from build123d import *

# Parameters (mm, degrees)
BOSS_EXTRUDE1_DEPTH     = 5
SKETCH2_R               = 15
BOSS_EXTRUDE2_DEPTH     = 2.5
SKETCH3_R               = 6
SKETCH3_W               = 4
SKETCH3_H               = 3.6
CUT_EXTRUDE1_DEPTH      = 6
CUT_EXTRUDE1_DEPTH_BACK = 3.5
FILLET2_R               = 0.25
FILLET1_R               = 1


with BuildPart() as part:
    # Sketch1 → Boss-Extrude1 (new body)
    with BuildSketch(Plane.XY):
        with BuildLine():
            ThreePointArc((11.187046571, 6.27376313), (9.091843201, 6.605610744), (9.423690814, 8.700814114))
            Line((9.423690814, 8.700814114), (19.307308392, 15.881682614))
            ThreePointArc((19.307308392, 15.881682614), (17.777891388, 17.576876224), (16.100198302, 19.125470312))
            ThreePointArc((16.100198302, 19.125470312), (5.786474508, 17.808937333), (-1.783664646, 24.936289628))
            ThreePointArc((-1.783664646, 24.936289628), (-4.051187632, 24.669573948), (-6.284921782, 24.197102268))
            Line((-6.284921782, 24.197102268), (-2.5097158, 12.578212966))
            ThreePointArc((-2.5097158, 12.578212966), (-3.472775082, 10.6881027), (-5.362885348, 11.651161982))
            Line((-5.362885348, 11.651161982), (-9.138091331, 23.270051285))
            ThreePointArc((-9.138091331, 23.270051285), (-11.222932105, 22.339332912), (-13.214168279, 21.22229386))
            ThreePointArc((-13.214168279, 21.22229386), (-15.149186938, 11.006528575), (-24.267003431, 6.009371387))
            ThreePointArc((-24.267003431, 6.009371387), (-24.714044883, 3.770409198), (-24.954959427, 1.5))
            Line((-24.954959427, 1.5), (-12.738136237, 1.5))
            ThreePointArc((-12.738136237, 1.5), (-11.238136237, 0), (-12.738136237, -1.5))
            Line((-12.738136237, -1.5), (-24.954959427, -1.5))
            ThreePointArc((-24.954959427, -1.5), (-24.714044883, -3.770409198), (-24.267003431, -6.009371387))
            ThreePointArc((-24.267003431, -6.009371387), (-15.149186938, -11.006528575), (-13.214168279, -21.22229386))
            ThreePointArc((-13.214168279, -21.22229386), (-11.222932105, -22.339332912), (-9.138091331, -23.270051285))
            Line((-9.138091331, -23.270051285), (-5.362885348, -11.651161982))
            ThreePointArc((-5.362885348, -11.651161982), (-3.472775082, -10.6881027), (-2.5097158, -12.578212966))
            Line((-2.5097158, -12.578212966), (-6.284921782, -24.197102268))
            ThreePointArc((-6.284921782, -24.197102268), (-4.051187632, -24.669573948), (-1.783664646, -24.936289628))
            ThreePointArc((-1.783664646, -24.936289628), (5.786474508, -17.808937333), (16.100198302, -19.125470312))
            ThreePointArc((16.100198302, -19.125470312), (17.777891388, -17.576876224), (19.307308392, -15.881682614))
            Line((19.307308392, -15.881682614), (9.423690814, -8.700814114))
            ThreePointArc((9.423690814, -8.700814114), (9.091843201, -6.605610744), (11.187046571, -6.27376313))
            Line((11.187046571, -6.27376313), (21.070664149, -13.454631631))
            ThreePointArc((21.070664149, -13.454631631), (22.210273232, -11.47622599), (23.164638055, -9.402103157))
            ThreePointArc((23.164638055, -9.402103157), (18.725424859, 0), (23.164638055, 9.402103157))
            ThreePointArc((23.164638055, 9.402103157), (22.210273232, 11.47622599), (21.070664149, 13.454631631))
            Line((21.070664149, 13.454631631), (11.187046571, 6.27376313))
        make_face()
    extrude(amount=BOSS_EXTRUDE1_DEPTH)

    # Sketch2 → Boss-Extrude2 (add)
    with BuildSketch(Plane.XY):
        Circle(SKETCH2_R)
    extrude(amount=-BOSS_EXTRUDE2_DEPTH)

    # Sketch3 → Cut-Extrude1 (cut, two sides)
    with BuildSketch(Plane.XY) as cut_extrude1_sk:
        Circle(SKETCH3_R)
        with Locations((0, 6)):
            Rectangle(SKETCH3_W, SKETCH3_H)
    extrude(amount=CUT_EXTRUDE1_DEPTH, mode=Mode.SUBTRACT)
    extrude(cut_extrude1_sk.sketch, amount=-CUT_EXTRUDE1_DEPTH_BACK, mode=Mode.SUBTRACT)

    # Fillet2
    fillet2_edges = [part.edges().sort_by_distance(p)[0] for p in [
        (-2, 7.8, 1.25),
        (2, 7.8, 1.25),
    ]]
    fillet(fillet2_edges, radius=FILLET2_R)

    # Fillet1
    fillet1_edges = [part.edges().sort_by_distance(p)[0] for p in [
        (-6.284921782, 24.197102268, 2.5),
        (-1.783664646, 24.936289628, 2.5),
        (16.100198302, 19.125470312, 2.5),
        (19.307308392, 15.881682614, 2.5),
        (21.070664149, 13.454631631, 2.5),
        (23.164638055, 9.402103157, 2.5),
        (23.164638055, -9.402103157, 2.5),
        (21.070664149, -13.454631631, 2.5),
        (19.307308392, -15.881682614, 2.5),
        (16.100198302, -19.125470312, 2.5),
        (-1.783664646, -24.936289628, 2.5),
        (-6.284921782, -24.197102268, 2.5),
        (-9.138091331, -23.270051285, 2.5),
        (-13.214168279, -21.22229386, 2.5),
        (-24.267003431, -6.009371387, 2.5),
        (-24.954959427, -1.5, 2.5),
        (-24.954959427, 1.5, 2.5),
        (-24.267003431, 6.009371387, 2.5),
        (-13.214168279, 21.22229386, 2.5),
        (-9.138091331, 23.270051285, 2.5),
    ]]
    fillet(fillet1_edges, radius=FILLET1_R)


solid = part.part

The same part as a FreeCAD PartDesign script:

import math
import FreeCAD as App
import Part
import Sketcher

V = App.Vector
Q = App.Units.Quantity


def edges_at(feature, points):
    """Names of the edges that pass closest to the given points."""
    edges = feature.Shape.Edges
    near = lambda p: min(range(len(edges)), key=lambda i: edges[i].distToShape(Part.Vertex(*p))[0])
    return sorted({f"Edge{near(p) + 1}" for p in points})

doc = App.newDocument("Part")
params = doc.addObject("Spreadsheet::Sheet", "Params")
for row, (alias, value) in enumerate([
    ("sketch1_radius", "25 mm"),
    ("sketch1_radius2", "1.5 mm"),
    ("pad1_length", "5 mm"),
    ("sketch2_diameter", "30 mm"),
    ("pad2_length", "2.5 mm"),
    ("sketch3_radius", "6 mm"),
    ("sketch3_width", "4 mm"),
    ("fillet_radius", "0.25 mm"),
    ("fillet2_radius", "1 mm"),
], start=1):
    params.set(f"A{row}", alias)
    params.set(f"B{row}", "=" + value)
    params.setAlias(f"B{row}", alias)

body = doc.addObject("PartDesign::Body", "Body")

# Sketch on XY plane
sketch1 = body.newObject("Sketcher::SketchObject", "Sketch")
sketch1.AttachmentSupport = (doc.getObject("XY_Plane"), [""])
sketch1.MapMode = "FlatFace"
sketch1.addGeometry(Part.ArcOfCircle(Part.Circle(V(10.305369, 7.487289, 0), V(0, 0, 1), 1.5), math.radians(126), math.radians(306)), False)
sketch1.addGeometry(Part.LineSegment(V(9.423691, 8.700814, 0), V(19.307308, 15.881683, 0)), False)
sketch1.addGeometry(Part.ArcOfCircle(Part.Circle(V(0, 0, 0), V(0, 0, 1), 25), math.radians(39.439813), math.radians(49.908666)), False)
sketch1.addGeometry(Part.ArcOfCircle(Part.Circle(V(9.54915, 29.389263, 0), V(0, 0, 1), 12.176275), math.radians(-158.548779), math.radians(-57.451221)), False)
sketch1.addGeometry(Part.ArcOfCircle(Part.Circle(V(0, 0, 0), V(0, 0, 1), 25), math.radians(94.091334), math.radians(104.560187)), False)
sketch1.addGeometry(Part.LineSegment(V(-6.284922, 24.197102, 0), V(-2.509716, 12.578213, 0)), False)
sketch1.addGeometry(Part.ArcOfCircle(Part.Circle(V(-3.936301, 12.114687, 0), V(0, 0, 1), 1.5), math.radians(-162), math.radians(18)), False)
sketch1.addGeometry(Part.LineSegment(V(-5.362885, 11.651162, 0), V(-9.138091, 23.270051, 0)), False)
sketch1.addGeometry(Part.ArcOfCircle(Part.Circle(V(0, 0, 0), V(0, 0, 1), 25), math.radians(111.439813), math.radians(121.908666)), False)
sketch1.addGeometry(Part.ArcOfCircle(Part.Circle(V(-25, 18.163563, 0), V(0, 0, 1), 12.176275), math.radians(-86.548779), math.radians(14.548779)), False)
sketch1.addGeometry(Part.ArcOfCircle(Part.Circle(V(0, 0, 0), V(0, 0, 1), 25), math.radians(166.091334), math.radians(176.560187)), False)
sketch1.addGeometry(Part.LineSegment(V(-24.954959, 1.5, 0), V(-12.738136, 1.5, 0)), False)
sketch1.addGeometry(Part.ArcOfCircle(Part.Circle(V(-12.738136, 0, 0), V(0, 0, 1), 1.5), math.radians(-90), math.radians(90)), False)
sketch1.addGeometry(Part.LineSegment(V(-12.738136, -1.5, 0), V(-24.954959, -1.5, 0)), False)
sketch1.addGeometry(Part.ArcOfCircle(Part.Circle(V(0, 0, 0), V(0, 0, 1), 25), math.radians(-176.560187), math.radians(-166.091334)), False)
sketch1.addGeometry(Part.ArcOfCircle(Part.Circle(V(-25, -18.163563, 0), V(0, 0, 1), 12.176275), math.radians(-14.548779), math.radians(86.548779)), False)
sketch1.addGeometry(Part.ArcOfCircle(Part.Circle(V(0, 0, 0), V(0, 0, 1), 25), math.radians(-121.908666), math.radians(-111.439813)), False)
sketch1.addGeometry(Part.LineSegment(V(-9.138091, -23.270051, 0), V(-5.362885, -11.651162, 0)), False)
sketch1.addGeometry(Part.ArcOfCircle(Part.Circle(V(-3.936301, -12.114687, 0), V(0, 0, 1), 1.5), math.radians(-18), math.radians(162)), False)
sketch1.addGeometry(Part.LineSegment(V(-2.509716, -12.578213, 0), V(-6.284922, -24.197102, 0)), False)
sketch1.addGeometry(Part.ArcOfCircle(Part.Circle(V(0, 0, 0), V(0, 0, 1), 25), math.radians(-104.560187), math.radians(-94.091334)), False)
sketch1.addGeometry(Part.ArcOfCircle(Part.Circle(V(9.54915, -29.389263, 0), V(0, 0, 1), 12.176275), math.radians(57.451221), math.radians(158.548779)), False)
sketch1.addGeometry(Part.ArcOfCircle(Part.Circle(V(0, 0, 0), V(0, 0, 1), 25), math.radians(-49.908666), math.radians(-39.439813)), False)
sketch1.addGeometry(Part.LineSegment(V(19.307308, -15.881683, 0), V(9.423691, -8.700814, 0)), False)
sketch1.addGeometry(Part.ArcOfCircle(Part.Circle(V(10.305369, -7.487289, 0), V(0, 0, 1), 1.5), math.radians(54), math.radians(234)), False)
sketch1.addGeometry(Part.LineSegment(V(11.187047, -6.273763, 0), V(21.070664, -13.454632, 0)), False)
sketch1.addGeometry(Part.ArcOfCircle(Part.Circle(V(0, 0, 0), V(0, 0, 1), 25), math.radians(-32.560187), math.radians(-22.091334)), False)
sketch1.addGeometry(Part.ArcOfCircle(Part.Circle(V(30.901699, 0, 0), V(0, 0, 1), 12.176275), math.radians(129.451221), math.radians(230.548779)), False)
sketch1.addGeometry(Part.ArcOfCircle(Part.Circle(V(0, 0, 0), V(0, 0, 1), 25), math.radians(22.091334), math.radians(32.560187)), False)
sketch1.addGeometry(Part.LineSegment(V(21.070664, 13.454632, 0), V(11.187047, 6.273763, 0)), False)
sketch1.addConstraint(Sketcher.Constraint("Tangent", 0, 1, 1, 1))
sketch1.addConstraint(Sketcher.Constraint("Coincident", 1, 2, 2, 1))
sketch1.addConstraint(Sketcher.Constraint("Coincident", 2, 2, 3, 2))
sketch1.addConstraint(Sketcher.Constraint("Coincident", 3, 1, 4, 1))
sketch1.addConstraint(Sketcher.Constraint("Coincident", 4, 2, 5, 1))
sketch1.addConstraint(Sketcher.Constraint("Tangent", 5, 2, 6, 2))
sketch1.addConstraint(Sketcher.Constraint("Tangent", 6, 1, 7, 1))
sketch1.addConstraint(Sketcher.Constraint("Coincident", 7, 2, 8, 1))
sketch1.addConstraint(Sketcher.Constraint("Coincident", 8, 2, 9, 2))
sketch1.addConstraint(Sketcher.Constraint("Coincident", 9, 1, 10, 1))
sketch1.addConstraint(Sketcher.Constraint("Coincident", 10, 2, 11, 1))
sketch1.addConstraint(Sketcher.Constraint("Tangent", 11, 2, 12, 2))
sketch1.addConstraint(Sketcher.Constraint("Tangent", 12, 1, 13, 1))
sketch1.addConstraint(Sketcher.Constraint("Coincident", 13, 2, 14, 1))
sketch1.addConstraint(Sketcher.Constraint("Coincident", 14, 2, 15, 2))
sketch1.addConstraint(Sketcher.Constraint("Coincident", 15, 1, 16, 1))
sketch1.addConstraint(Sketcher.Constraint("Coincident", 16, 2, 17, 1))
sketch1.addConstraint(Sketcher.Constraint("Tangent", 17, 2, 18, 2))
sketch1.addConstraint(Sketcher.Constraint("Tangent", 18, 1, 19, 1))
sketch1.addConstraint(Sketcher.Constraint("Coincident", 19, 2, 20, 1))
sketch1.addConstraint(Sketcher.Constraint("Coincident", 20, 2, 21, 2))
sketch1.addConstraint(Sketcher.Constraint("Coincident", 21, 1, 22, 1))
sketch1.addConstraint(Sketcher.Constraint("Coincident", 22, 2, 23, 1))
sketch1.addConstraint(Sketcher.Constraint("Tangent", 23, 2, 24, 2))
sketch1.addConstraint(Sketcher.Constraint("Tangent", 24, 1, 25, 1))
sketch1.addConstraint(Sketcher.Constraint("Coincident", 25, 2, 26, 1))
sketch1.addConstraint(Sketcher.Constraint("Coincident", 26, 2, 27, 2))
sketch1.addConstraint(Sketcher.Constraint("Coincident", 27, 1, 28, 1))
sketch1.addConstraint(Sketcher.Constraint("Coincident", 28, 2, 29, 1))
sketch1.addConstraint(Sketcher.Constraint("Tangent", 29, 2, 0, 2))
sketch1.addConstraint(Sketcher.Constraint("Horizontal", 11))
sketch1.addConstraint(Sketcher.Constraint("Horizontal", 13))
sketch1.addConstraint(Sketcher.Constraint("Coincident", 2, 3, -1, 1))
sketch1.addConstraint(Sketcher.Constraint("Coincident", 4, 3, -1, 1))
sketch1.addConstraint(Sketcher.Constraint("Coincident", 8, 3, -1, 1))
sketch1.addConstraint(Sketcher.Constraint("Coincident", 10, 3, -1, 1))
sketch1.addConstraint(Sketcher.Constraint("Coincident", 14, 3, -1, 1))
sketch1.addConstraint(Sketcher.Constraint("Coincident", 16, 3, -1, 1))
sketch1.addConstraint(Sketcher.Constraint("Coincident", 20, 3, -1, 1))
sketch1.addConstraint(Sketcher.Constraint("Coincident", 22, 3, -1, 1))
sketch1.addConstraint(Sketcher.Constraint("Coincident", 26, 3, -1, 1))
sketch1.addConstraint(Sketcher.Constraint("Coincident", 28, 3, -1, 1))
sketch1.addConstraint(Sketcher.Constraint("Equal", 2, 4))
sketch1.addConstraint(Sketcher.Constraint("Equal", 0, 6))
sketch1.addConstraint(Sketcher.Constraint("Equal", 4, 8))
sketch1.addConstraint(Sketcher.Constraint("Equal", 3, 9))
sketch1.addConstraint(Sketcher.Constraint("Equal", 8, 10))
sketch1.addConstraint(Sketcher.Constraint("Equal", 6, 12))
sketch1.addConstraint(Sketcher.Constraint("Equal", 10, 14))
sketch1.addConstraint(Sketcher.Constraint("Equal", 9, 15))
sketch1.addConstraint(Sketcher.Constraint("Equal", 14, 16))
sketch1.addConstraint(Sketcher.Constraint("Equal", 12, 18))
sketch1.addConstraint(Sketcher.Constraint("Equal", 16, 20))
sketch1.addConstraint(Sketcher.Constraint("Equal", 15, 21))
sketch1.addConstraint(Sketcher.Constraint("Equal", 20, 22))
sketch1.addConstraint(Sketcher.Constraint("Equal", 18, 24))
sketch1.addConstraint(Sketcher.Constraint("Equal", 22, 26))
sketch1.addConstraint(Sketcher.Constraint("Equal", 21, 27))
sketch1.addConstraint(Sketcher.Constraint("Equal", 26, 28))
sketch1.addConstraint(Sketcher.Constraint("Symmetric", 9, 3, 15, 3, -1))
sketch1.addConstraint(Sketcher.Constraint("Symmetric", 6, 3, 18, 3, -1))
sketch1.addConstraint(Sketcher.Constraint("Symmetric", 3, 3, 21, 3, -1))
sketch1.addConstraint(Sketcher.Constraint("Symmetric", 0, 3, 24, 3, -1))
sketch1.addConstraint(Sketcher.Constraint("PointOnObject", 12, 3, -1))
sketch1.addConstraint(Sketcher.Constraint("PointOnObject", 27, 3, -1))
sketch1.addConstraint(Sketcher.Constraint("Parallel", 5, 7))
sketch1.addConstraint(Sketcher.Constraint("Parallel", 17, 19))
sketch1.addConstraint(Sketcher.Constraint("Parallel", 23, 25))
sketch1.addConstraint(Sketcher.Constraint("Parallel", 1, 29))
sketch1.addConstraint(Sketcher.Constraint("Vertical", 7, 2, 16, 2))
sketch1.addConstraint(Sketcher.Constraint("Vertical", 1, 2, 22, 2))
sketch1.addConstraint(Sketcher.Constraint("Equal", 1, 5))
sketch1.addConstraint(Sketcher.Constraint("Equal", 5, 7))
sketch1.addConstraint(Sketcher.Constraint("Equal", 23, 25))
sketch1.addConstraint(Sketcher.Constraint("Radius", 2, Q("25 mm")))
sketch1.addConstraint(Sketcher.Constraint("Radius", 0, Q("1.5 mm")))
sketch1.addConstraint(Sketcher.Constraint("Angle", 1, Q("36 deg")))
sketch1.addConstraint(Sketcher.Constraint("Angle", 5, Q("-72 deg")))
sketch1.addConstraint(Sketcher.Constraint("DistanceX", 9, 3, -1, 1, Q("25 mm")))
sketch1.addConstraint(Sketcher.Constraint("Radius", 3, Q("12.176275 mm")))
sketch1.addConstraint(Sketcher.Constraint("DistanceY", 0, 3, 3, 1, Q("17.449001 mm")))
sketch1.addConstraint(Sketcher.Constraint("DistanceX", 6, 3, -1, 1, Q("3.936301 mm")))
sketch1.addConstraint(Sketcher.Constraint("DistanceX", -1, 1, 27, 3, Q("30.901699 mm")))
sketch1.addConstraint(Sketcher.Constraint("DistanceX", -1, 1, 2, 2, Q("16.100198 mm")))
sketch1.addConstraint(Sketcher.Constraint("DistanceY", 9, 3, 3, 3, Q("11.225699 mm")))
sketch1.addConstraint(Sketcher.Constraint("DistanceX", 11, 1, 11, 2, Q("12.216823 mm")))
sketch1.setExpression("Constraints[74]", "Params.sketch1_radius")
sketch1.setExpression("Constraints[75]", "Params.sketch1_radius2")
pad1 = body.newObject("PartDesign::Pad", "Pad")
pad1.Profile = sketch1
pad1.setExpression("Length", "Params.pad1_length")

# Sketch on XY plane
sketch2 = body.newObject("Sketcher::SketchObject", "Sketch001")
sketch2.AttachmentSupport = (doc.getObject("XY_Plane"), [""])
sketch2.MapMode = "FlatFace"
sketch2.addGeometry(Part.Circle(V(0, 0, 0), V(0, 0, 1), 15), False)
sketch2.addConstraint(Sketcher.Constraint("Coincident", 0, 3, -1, 1))
sketch2.addConstraint(Sketcher.Constraint("Diameter", 0, Q("30 mm")))
sketch2.setExpression("Constraints[1]", "Params.sketch2_diameter")
pad2 = body.newObject("PartDesign::Pad", "Pad001")
pad2.Profile = sketch2
pad2.setExpression("Length", "Params.pad2_length")
pad2.Reversed = True

# Sketch on XY plane
sketch3 = body.newObject("Sketcher::SketchObject", "Sketch002")
sketch3.AttachmentSupport = (doc.getObject("XY_Plane"), [""])
sketch3.MapMode = "FlatFace"
sketch3.addGeometry(Part.ArcOfCircle(Part.Circle(V(0, 0, 0), V(0, 0, 1), 6), math.radians(109.471221), math.radians(430.528779)), False)
sketch3.addGeometry(Part.LineSegment(V(2, 5.656854, 0), V(2, 7.8, 0)), False)
sketch3.addGeometry(Part.LineSegment(V(2, 7.8, 0), V(-2, 7.8, 0)), False)
sketch3.addGeometry(Part.LineSegment(V(-2, 7.8, 0), V(-2, 5.656854, 0)), False)
sketch3.addConstraint(Sketcher.Constraint("Coincident", 0, 2, 1, 1))
sketch3.addConstraint(Sketcher.Constraint("Coincident", 1, 2, 2, 1))
sketch3.addConstraint(Sketcher.Constraint("Coincident", 2, 2, 3, 1))
sketch3.addConstraint(Sketcher.Constraint("Coincident", 3, 2, 0, 1))
sketch3.addConstraint(Sketcher.Constraint("Vertical", 1))
sketch3.addConstraint(Sketcher.Constraint("Horizontal", 2))
sketch3.addConstraint(Sketcher.Constraint("Vertical", 3))
sketch3.addConstraint(Sketcher.Constraint("Coincident", 0, 3, -1, 1))
sketch3.addConstraint(Sketcher.Constraint("Horizontal", 0, 2, 3, 2))
sketch3.addConstraint(Sketcher.Constraint("Radius", 0, Q("6 mm")))
sketch3.addConstraint(Sketcher.Constraint("DistanceX", 2, 2, 2, 1, Q("4 mm")))
sketch3.addConstraint(Sketcher.Constraint("DistanceY", -1, 1, 1, 2, Q("7.8 mm")))
sketch3.setExpression("Constraints[9]", "Params.sketch3_radius")
sketch3.setExpression("Constraints[10]", "Params.sketch3_width")
pocket1 = body.newObject("PartDesign::Pocket", "Pocket")
pocket1.Profile = sketch3
pocket1.Type = "ThroughAll"
pocket1.Midplane = True
doc.recompute()

fillet = body.newObject("PartDesign::Fillet", "Fillet")
fillet.Base = (pocket1, edges_at(pocket1, [(-2, 7.8, 1.25), (2, 7.8, 1.25)]))
fillet.setExpression("Radius", "Params.fillet_radius")
doc.recompute()

fillet2 = body.newObject("PartDesign::Fillet", "Fillet001")
fillet2.Base = (fillet, edges_at(fillet, [
    (-6.285, 24.197, 2.5),
    (-1.784, 24.936, 2.5),
    (16.1, 19.125, 2.5),
    (19.307, 15.882, 2.5),
    (21.071, 13.455, 2.5),
    (23.165, 9.402, 2.5),
    (23.165, -9.402, 2.5),
    (21.071, -13.455, 2.5),
    (19.307, -15.882, 2.5),
    (16.1, -19.125, 2.5),
    (-1.784, -24.936, 2.5),
    (-6.285, -24.197, 2.5),
    (-9.138, -23.27, 2.5),
    (-13.214, -21.222, 2.5),
    (-24.267, -6.009, 2.5),
    (-24.955, -1.5, 2.5),
    (-24.955, 1.5, 2.5),
    (-24.267, 6.009, 2.5),
    (-13.214, 21.222, 2.5),
    (-9.138, 23.27, 2.5),
]))
fillet2.setExpression("Radius", "Params.fillet2_radius")

doc.recompute()
